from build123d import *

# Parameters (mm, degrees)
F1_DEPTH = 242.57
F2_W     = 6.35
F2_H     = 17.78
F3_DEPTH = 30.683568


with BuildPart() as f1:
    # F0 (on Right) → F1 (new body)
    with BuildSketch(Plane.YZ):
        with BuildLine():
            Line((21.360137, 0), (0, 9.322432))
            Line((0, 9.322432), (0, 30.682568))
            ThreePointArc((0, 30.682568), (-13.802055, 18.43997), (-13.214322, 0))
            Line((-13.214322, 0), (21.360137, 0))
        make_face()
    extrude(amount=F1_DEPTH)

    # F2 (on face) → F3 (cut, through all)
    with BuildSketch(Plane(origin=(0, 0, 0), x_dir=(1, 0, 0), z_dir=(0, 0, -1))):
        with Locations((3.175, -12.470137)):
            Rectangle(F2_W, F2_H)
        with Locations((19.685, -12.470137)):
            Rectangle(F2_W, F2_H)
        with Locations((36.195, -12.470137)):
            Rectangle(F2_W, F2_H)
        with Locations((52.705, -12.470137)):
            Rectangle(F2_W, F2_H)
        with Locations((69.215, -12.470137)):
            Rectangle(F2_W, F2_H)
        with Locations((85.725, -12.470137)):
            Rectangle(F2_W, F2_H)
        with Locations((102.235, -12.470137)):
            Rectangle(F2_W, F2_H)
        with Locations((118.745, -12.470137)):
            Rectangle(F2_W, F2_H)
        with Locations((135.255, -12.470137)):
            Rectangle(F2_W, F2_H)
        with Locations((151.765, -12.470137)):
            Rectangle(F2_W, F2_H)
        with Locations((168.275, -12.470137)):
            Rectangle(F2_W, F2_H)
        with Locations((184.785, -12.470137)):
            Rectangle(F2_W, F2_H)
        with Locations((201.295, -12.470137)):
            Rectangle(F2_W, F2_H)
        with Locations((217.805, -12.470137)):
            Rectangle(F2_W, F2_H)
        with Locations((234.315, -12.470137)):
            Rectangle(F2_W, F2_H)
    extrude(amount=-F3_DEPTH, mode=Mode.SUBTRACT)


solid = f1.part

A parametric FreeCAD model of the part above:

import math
import FreeCAD as App
import Part
import Sketcher
Q = App.Units.Quantity

doc = App.newDocument("Part")
body = doc.addObject("PartDesign::Body", "Body")

sketch1 = body.newObject("Sketcher::SketchObject", "Sketch")
sketch1.AttachmentSupport = (doc.getObject("YZ_Plane"), [""])
sketch1.MapMode = "FlatFace"
sketch1.addGeometry([
    Part.LineSegment(App.Vector(21, 0, 0), App.Vector(0, 9, 0)),
    Part.LineSegment(App.Vector(0, 9, 0), App.Vector(0, 31, 0)),
    Part.ArcOfCircle(Part.Circle(App.Vector(6, 10, 0), App.Vector(0, 0, 1), 22), math.radians(106), math.radians(207)),
    Part.LineSegment(App.Vector(-13, 0, 0), App.Vector(21, 0, 0)),
], False)
sketch1.addConstraint([
    Sketcher.Constraint("Coincident", 0, 2, 1, 1),
    Sketcher.Constraint("Coincident", 1, 2, 2, 1),
    Sketcher.Constraint("Coincident", 2, 2, 3, 1),
    Sketcher.Constraint("Coincident", 3, 2, 0, 1),
    Sketcher.Constraint("Vertical", 1),
    Sketcher.Constraint("Horizontal", 3),
    Sketcher.Constraint("PointOnObject", 0, 2, -2),
    Sketcher.Constraint("PointOnObject", 2, 2, -1),
    Sketcher.Constraint("Radius", 2, Q("21.724968 mm")),
    Sketcher.Constraint("DistanceX", 3, 1, 3, 2, Q("34.574459 mm")),
    Sketcher.Constraint("Distance", 0, Q("23.305862 mm")),
    Sketcher.Constraint("DistanceY", 1, 1, 1, 2, Q("21.360136 mm")),
    Sketcher.Constraint("DistanceY", -1, 1, 2, 3, Q("9.846581 mm")),
])
pad1 = body.newObject("PartDesign::Pad", "Pad")
pad1.Profile = sketch1
pad1.Length = Q("9.55 in")

sketch2 = body.newObject("Sketcher::SketchObject", "Sketch001")
sketch2.AttachmentSupport = (doc.getObject("XY_Plane"), [""])
sketch2.MapMode = "FlatFace"
sketch2.addGeometry([
    Part.LineSegment(App.Vector(0, 4, 0), App.Vector(0, 21, 0)),
    Part.LineSegment(App.Vector(0, 21, 0), App.Vector(6, 21, 0)),
    Part.LineSegment(App.Vector(6, 21, 0), App.Vector(6, 4, 0)),
    Part.LineSegment(App.Vector(6, 4, 0), App.Vector(0, 4, 0)),
    Part.LineSegment(App.Vector(17, 4, 0), App.Vector(17, 21, 0)),
    Part.LineSegment(App.Vector(17, 21, 0), App.Vector(23, 21, 0)),
    Part.LineSegment(App.Vector(23, 21, 0), App.Vector(23, 4, 0)),
    Part.LineSegment(App.Vector(23, 4, 0), App.Vector(17, 4, 0)),
    Part.LineSegment(App.Vector(33, 4, 0), App.Vector(33, 21, 0)),
    Part.LineSegment(App.Vector(33, 21, 0), App.Vector(39, 21, 0)),
    Part.LineSegment(App.Vector(39, 21, 0), App.Vector(39, 4, 0)),
    Part.LineSegment(App.Vector(39, 4, 0), App.Vector(33, 4, 0)),
    Part.LineSegment(App.Vector(50, 4, 0), App.Vector(50, 21, 0)),
    Part.LineSegment(App.Vector(50, 21, 0), App.Vector(56, 21, 0)),
    Part.LineSegment(App.Vector(56, 21, 0), App.Vector(56, 4, 0)),
    Part.LineSegment(App.Vector(56, 4, 0), App.Vector(50, 4, 0)),
    Part.LineSegment(App.Vector(66, 4, 0), App.Vector(66, 21, 0)),
    Part.LineSegment(App.Vector(66, 21, 0), App.Vector(72, 21, 0)),
    Part.LineSegment(App.Vector(72, 21, 0), App.Vector(72, 4, 0)),
    Part.LineSegment(App.Vector(72, 4, 0), App.Vector(66, 4, 0)),
    Part.LineSegment(App.Vector(83, 4, 0), App.Vector(83, 21, 0)),
    Part.LineSegment(App.Vector(83, 21, 0), App.Vector(89, 21, 0)),
    Part.LineSegment(App.Vector(89, 21, 0), App.Vector(89, 4, 0)),
    Part.LineSegment(App.Vector(89, 4, 0), App.Vector(83, 4, 0)),
    Part.LineSegment(App.Vector(99, 4, 0), App.Vector(99, 21, 0)),
    Part.LineSegment(App.Vector(99, 21, 0), App.Vector(105, 21, 0)),
    Part.LineSegment(App.Vector(105, 21, 0), App.Vector(105, 4, 0)),
    Part.LineSegment(App.Vector(105, 4, 0), App.Vector(99, 4, 0)),
    Part.LineSegment(App.Vector(116, 4, 0), App.Vector(116, 21, 0)),
    Part.LineSegment(App.Vector(116, 21, 0), App.Vector(122, 21, 0)),
    Part.LineSegment(App.Vector(122, 21, 0), App.Vector(122, 4, 0)),
    Part.LineSegment(App.Vector(122, 4, 0), App.Vector(116, 4, 0)),
    Part.LineSegment(App.Vector(132, 4, 0), App.Vector(132, 21, 0)),
    Part.LineSegment(App.Vector(132, 21, 0), App.Vector(138, 21, 0)),
    Part.LineSegment(App.Vector(138, 21, 0), App.Vector(138, 4, 0)),
    Part.LineSegment(App.Vector(138, 4, 0), App.Vector(132, 4, 0)),
    Part.LineSegment(App.Vector(149, 4, 0), App.Vector(149, 21, 0)),
    Part.LineSegment(App.Vector(149, 21, 0), App.Vector(155, 21, 0)),
    Part.LineSegment(App.Vector(155, 21, 0), App.Vector(155, 4, 0)),
    Part.LineSegment(App.Vector(155, 4, 0), App.Vector(149, 4, 0)),
    Part.LineSegment(App.Vector(165, 4, 0), App.Vector(165, 21, 0)),
    Part.LineSegment(App.Vector(165, 21, 0), App.Vector(171, 21, 0)),
    Part.LineSegment(App.Vector(171, 21, 0), App.Vector(171, 4, 0)),
    Part.LineSegment(App.Vector(171, 4, 0), App.Vector(165, 4, 0)),
    Part.LineSegment(App.Vector(182, 4, 0), App.Vector(182, 21, 0)),
    Part.LineSegment(App.Vector(182, 21, 0), App.Vector(188, 21, 0)),
    Part.LineSegment(App.Vector(188, 21, 0), App.Vector(188, 4, 0)),
    Part.LineSegment(App.Vector(188, 4, 0), App.Vector(182, 4, 0)),
    Part.LineSegment(App.Vector(198, 4, 0), App.Vector(198, 21, 0)),
    Part.LineSegment(App.Vector(198, 21, 0), App.Vector(204, 21, 0)),
    Part.LineSegment(App.Vector(204, 21, 0), App.Vector(204, 4, 0)),
    Part.LineSegment(App.Vector(204, 4, 0), App.Vector(198, 4, 0)),
    Part.LineSegment(App.Vector(215, 4, 0), App.Vector(215, 21, 0)),
    Part.LineSegment(App.Vector(215, 21, 0), App.Vector(221, 21, 0)),
    Part.LineSegment(App.Vector(221, 21, 0), App.Vector(221, 4, 0)),
    Part.LineSegment(App.Vector(221, 4, 0), App.Vector(215, 4, 0)),
    Part.LineSegment(App.Vector(231, 4, 0), App.Vector(231, 21, 0)),
    Part.LineSegment(App.Vector(231, 21, 0), App.Vector(237, 21, 0)),
    Part.LineSegment(App.Vector(237, 21, 0), App.Vector(237, 4, 0)),
    Part.LineSegment(App.Vector(237, 4, 0), App.Vector(231, 4, 0)),
], False)
sketch2.addConstraint([
    Sketcher.Constraint("Coincident", 0, 2, 1, 1),
    Sketcher.Constraint("Coincident", 1, 2, 2, 1),
    Sketcher.Constraint("Coincident", 2, 2, 3, 1),
    Sketcher.Constraint("Coincident", 3, 2, 0, 1),
    Sketcher.Constraint("Coincident", 4, 2, 5, 1),
    Sketcher.Constraint("Coincident", 5, 2, 6, 1),
    Sketcher.Constraint("Coincident", 6, 2, 7, 1),
    Sketcher.Constraint("Coincident", 7, 2, 4, 1),
    Sketcher.Constraint("Coincident", 8, 2, 9, 1),
    Sketcher.Constraint("Coincident", 9, 2, 10, 1),
    Sketcher.Constraint("Coincident", 10, 2, 11, 1),
    Sketcher.Constraint("Coincident", 11, 2, 8, 1),
    Sketcher.Constraint("Coincident", 12, 2, 13, 1),
    Sketcher.Constraint("Coincident", 13, 2, 14, 1),
    Sketcher.Constraint("Coincident", 14, 2, 15, 1),
    Sketcher.Constraint("Coincident", 15, 2, 12, 1),
    Sketcher.Constraint("Coincident", 16, 2, 17, 1),
    Sketcher.Constraint("Coincident", 17, 2, 18, 1),
    Sketcher.Constraint("Coincident", 18, 2, 19, 1),
    Sketcher.Constraint("Coincident", 19, 2, 16, 1),
    Sketcher.Constraint("Coincident", 20, 2, 21, 1),
    Sketcher.Constraint("Coincident", 21, 2, 22, 1),
    Sketcher.Constraint("Coincident", 22, 2, 23, 1),
    Sketcher.Constraint("Coincident", 23, 2, 20, 1),
    Sketcher.Constraint("Coincident", 24, 2, 25, 1),
    Sketcher.Constraint("Coincident", 25, 2, 26, 1),
    Sketcher.Constraint("Coincident", 26, 2, 27, 1),
    Sketcher.Constraint("Coincident", 27, 2, 24, 1),
    Sketcher.Constraint("Coincident", 28, 2, 29, 1),
    Sketcher.Constraint("Coincident", 29, 2, 30, 1),
    Sketcher.Constraint("Coincident", 30, 2, 31, 1),
    Sketcher.Constraint("Coincident", 31, 2, 28, 1),
    Sketcher.Constraint("Coincident", 32, 2, 33, 1),
    Sketcher.Constraint("Coincident", 33, 2, 34, 1),
    Sketcher.Constraint("Coincident", 34, 2, 35, 1),
    Sketcher.Constraint("Coincident", 35, 2, 32, 1),
    Sketcher.Constraint("Coincident", 36, 2, 37, 1),
    Sketcher.Constraint("Coincident", 37, 2, 38, 1),
    Sketcher.Constraint("Coincident", 38, 2, 39, 1),
    Sketcher.Constraint("Coincident", 39, 2, 36, 1),
    Sketcher.Constraint("Coincident", 40, 2, 41, 1),
    Sketcher.Constraint("Coincident", 41, 2, 42, 1),
    Sketcher.Constraint("Coincident", 42, 2, 43, 1),
    Sketcher.Constraint("Coincident", 43, 2, 40, 1),
    Sketcher.Constraint("Coincident", 44, 2, 45, 1),
    Sketcher.Constraint("Coincident", 45, 2, 46, 1),
    Sketcher.Constraint("Coincident", 46, 2, 47, 1),
    Sketcher.Constraint("Coincident", 47, 2, 44, 1),
    Sketcher.Constraint("Coincident", 48, 2, 49, 1),
    Sketcher.Constraint("Coincident", 49, 2, 50, 1),
    Sketcher.Constraint("Coincident", 50, 2, 51, 1),
    Sketcher.Constraint("Coincident", 51, 2, 48, 1),
    Sketcher.Constraint("Coincident", 52, 2, 53, 1),
    Sketcher.Constraint("Coincident", 53, 2, 54, 1),
    Sketcher.Constraint("Coincident", 54, 2, 55, 1),
    Sketcher.Constraint("Coincident", 55, 2, 52, 1),
    Sketcher.Constraint("Coincident", 56, 2, 57, 1),
    Sketcher.Constraint("Coincident", 57, 2, 58, 1),
    Sketcher.Constraint("Coincident", 58, 2, 59, 1),
    Sketcher.Constraint("Coincident", 59, 2, 56, 1),
    Sketcher.Constraint("Vertical", 0),
    Sketcher.Constraint("Horizontal", 1),
    Sketcher.Constraint("Vertical", 2),
    Sketcher.Constraint("Horizontal", 3),
    Sketcher.Constraint("Vertical", 4),
    Sketcher.Constraint("Horizontal", 5),
    Sketcher.Constraint("Vertical", 6),
    Sketcher.Constraint("Horizontal", 7),
    Sketcher.Constraint("Vertical", 8),
    Sketcher.Constraint("Horizontal", 9),
    Sketcher.Constraint("Vertical", 10),
    Sketcher.Constraint("Horizontal", 11),
    Sketcher.Constraint("Vertical", 12),
    Sketcher.Constraint("Horizontal", 13),
    Sketcher.Constraint("Vertical", 14),
    Sketcher.Constraint("Horizontal", 15),
    Sketcher.Constraint("Vertical", 16),
    Sketcher.Constraint("Horizontal", 17),
    Sketcher.Constraint("Vertical", 18),
    Sketcher.Constraint("Horizontal", 19),
    Sketcher.Constraint("Vertical", 20),
    Sketcher.Constraint("Horizontal", 21),
    Sketcher.Constraint("Vertical", 22),
    Sketcher.Constraint("Horizontal", 23),
    Sketcher.Constraint("Vertical", 24),
    Sketcher.Constraint("Horizontal", 25),
    Sketcher.Constraint("Vertical", 26),
    Sketcher.Constraint("Horizontal", 27),
    Sketcher.Constraint("Vertical", 28),
    Sketcher.Constraint("Horizontal", 29),
    Sketcher.Constraint("Vertical", 30),
    Sketcher.Constraint("Horizontal", 31),
    Sketcher.Constraint("Vertical", 32),
    Sketcher.Constraint("Horizontal", 33),
    Sketcher.Constraint("Vertical", 34),
    Sketcher.Constraint("Horizontal", 35),
    Sketcher.Constraint("Vertical", 36),
    Sketcher.Constraint("Horizontal", 37),
    Sketcher.Constraint("Vertical", 38),
    Sketcher.Constraint("Horizontal", 39),
    Sketcher.Constraint("Vertical", 40),
    Sketcher.Constraint("Horizontal", 41),
    Sketcher.Constraint("Vertical", 42),
    Sketcher.Constraint("Horizontal", 43),
    Sketcher.Constraint("Vertical", 44),
    Sketcher.Constraint("Horizontal", 45),
    Sketcher.Constraint("Vertical", 46),
    Sketcher.Constraint("Horizontal", 47),
    Sketcher.Constraint("Vertical", 48),
    Sketcher.Constraint("Horizontal", 49),
    Sketcher.Constraint("Vertical", 50),
    Sketcher.Constraint("Horizontal", 51),
    Sketcher.Constraint("Vertical", 52),
    Sketcher.Constraint("Horizontal", 53),
    Sketcher.Constraint("Vertical", 54),
    Sketcher.Constraint("Horizontal", 55),
    Sketcher.Constraint("Vertical", 56),
    Sketcher.Constraint("Horizontal", 57),
    Sketcher.Constraint("Vertical", 58),
    Sketcher.Constraint("Horizontal", 59),
    Sketcher.Constraint("PointOnObject", 0, 2, -2),
    Sketcher.Constraint("Horizontal", 1, 2, 4, 2),
    Sketcher.Constraint("Horizontal", 3, 2, 6, 2),
    Sketcher.Constraint("Horizontal", 5, 2, 8, 2),
    Sketcher.Constraint("Horizontal", 7, 2, 10, 2),
    Sketcher.Constraint("Horizontal", 9, 2, 12, 2),
    Sketcher.Constraint("Horizontal", 11, 2, 14, 2),
    Sketcher.Constraint("Horizontal", 13, 2, 16, 2),
    Sketcher.Constraint("Horizontal", 15, 2, 18, 2),
    Sketcher.Constraint("Horizontal", 17, 2, 20, 2),
    Sketcher.Constraint("Horizontal", 19, 2, 22, 2),
    Sketcher.Constraint("Horizontal", 21, 2, 24, 2),
    Sketcher.Constraint("Horizontal", 23, 2, 26, 2),
    Sketcher.Constraint("Horizontal", 25, 2, 28, 2),
    Sketcher.Constraint("Horizontal", 27, 2, 30, 2),
    Sketcher.Constraint("Horizontal", 29, 2, 32, 2),
    Sketcher.Constraint("Horizontal", 31, 2, 34, 2),
    Sketcher.Constraint("Horizontal", 33, 2, 36, 2),
    Sketcher.Constraint("Horizontal", 35, 2, 38, 2),
    Sketcher.Constraint("Horizontal", 37, 2, 40, 2),
    Sketcher.Constraint("Horizontal", 39, 2, 42, 2),
    Sketcher.Constraint("Horizontal", 41, 2, 44, 2),
    Sketcher.Constraint("Horizontal", 43, 2, 46, 2),
    Sketcher.Constraint("Horizontal", 45, 2, 48, 2),
    Sketcher.Constraint("Horizontal", 47, 2, 50, 2),
    Sketcher.Constraint("Horizontal", 49, 2, 52, 2),
    Sketcher.Constraint("Horizontal", 51, 2, 54, 2),
    Sketcher.Constraint("Horizontal", 53, 2, 56, 2),
    Sketcher.Constraint("Horizontal", 55, 2, 58, 2),
    Sketcher.Constraint("Equal", 3, 5),
    Sketcher.Constraint("Equal", 7, 9),
    Sketcher.Constraint("Equal", 11, 13),
    Sketcher.Constraint("Equal", 15, 17),
    Sketcher.Constraint("Equal", 19, 21),
    Sketcher.Constraint("Equal", 23, 25),
    Sketcher.Constraint("Equal", 27, 29),
    Sketcher.Constraint("Equal", 31, 33),
    Sketcher.Constraint("Equal", 35, 37),
    Sketcher.Constraint("Equal", 39, 41),
    Sketcher.Constraint("Equal", 43, 45),
    Sketcher.Constraint("Equal", 47, 49),
    Sketcher.Constraint("Equal", 51, 53),
    Sketcher.Constraint("Equal", 55, 57),
    Sketcher.Constraint("DistanceY", 0, 1, 0, 2, Q("0.7 in")),
    Sketcher.Constraint("DistanceX", 1, 1, 1, 2, Q("0.25 in")),
    Sketcher.Constraint("DistanceX", -1, 1, 5, 2, Q("0.9 in")),
    Sketcher.Constraint("DistanceX", -1, 1, 8, 2, Q("1.3 in")),
    Sketcher.Constraint("DistanceX", -1, 1, 13, 2, Q("2.2 in")),
    Sketcher.Constraint("DistanceX", -1, 1, 16, 2, Q("2.6 in")),
    Sketcher.Constraint("DistanceX", -1, 1, 21, 2, Q("3.5 in")),
    Sketcher.Constraint("DistanceX", -1, 1, 24, 2, Q("3.9 in")),
    Sketcher.Constraint("DistanceX", -1, 1, 29, 2, Q("4.8 in")),
    Sketcher.Constraint("DistanceX", -1, 1, 32, 2, Q("5.2 in")),
    Sketcher.Constraint("DistanceX", -1, 1, 37, 2, Q("6.1 in")),
    Sketcher.Constraint("DistanceX", -1, 1, 40, 2, Q("6.5 in")),
    Sketcher.Constraint("DistanceX", -1, 1, 45, 2, Q("7.4 in")),
    Sketcher.Constraint("DistanceX", -1, 1, 48, 2, Q("7.8 in")),
    Sketcher.Constraint("DistanceX", -1, 1, 53, 2, Q("8.7 in")),
    Sketcher.Constraint("DistanceX", -1, 1, 56, 2, Q("9.1 in")),
    Sketcher.Constraint("DistanceY", -1, 1, 0, 2, Q("21.360137 mm")),
])
pocket1 = body.newObject("PartDesign::Pocket", "Pocket")
pocket1.Profile = sketch2
pocket1.Type = "ThroughAll"
pocket1.Reversed = True

doc.recompute()
